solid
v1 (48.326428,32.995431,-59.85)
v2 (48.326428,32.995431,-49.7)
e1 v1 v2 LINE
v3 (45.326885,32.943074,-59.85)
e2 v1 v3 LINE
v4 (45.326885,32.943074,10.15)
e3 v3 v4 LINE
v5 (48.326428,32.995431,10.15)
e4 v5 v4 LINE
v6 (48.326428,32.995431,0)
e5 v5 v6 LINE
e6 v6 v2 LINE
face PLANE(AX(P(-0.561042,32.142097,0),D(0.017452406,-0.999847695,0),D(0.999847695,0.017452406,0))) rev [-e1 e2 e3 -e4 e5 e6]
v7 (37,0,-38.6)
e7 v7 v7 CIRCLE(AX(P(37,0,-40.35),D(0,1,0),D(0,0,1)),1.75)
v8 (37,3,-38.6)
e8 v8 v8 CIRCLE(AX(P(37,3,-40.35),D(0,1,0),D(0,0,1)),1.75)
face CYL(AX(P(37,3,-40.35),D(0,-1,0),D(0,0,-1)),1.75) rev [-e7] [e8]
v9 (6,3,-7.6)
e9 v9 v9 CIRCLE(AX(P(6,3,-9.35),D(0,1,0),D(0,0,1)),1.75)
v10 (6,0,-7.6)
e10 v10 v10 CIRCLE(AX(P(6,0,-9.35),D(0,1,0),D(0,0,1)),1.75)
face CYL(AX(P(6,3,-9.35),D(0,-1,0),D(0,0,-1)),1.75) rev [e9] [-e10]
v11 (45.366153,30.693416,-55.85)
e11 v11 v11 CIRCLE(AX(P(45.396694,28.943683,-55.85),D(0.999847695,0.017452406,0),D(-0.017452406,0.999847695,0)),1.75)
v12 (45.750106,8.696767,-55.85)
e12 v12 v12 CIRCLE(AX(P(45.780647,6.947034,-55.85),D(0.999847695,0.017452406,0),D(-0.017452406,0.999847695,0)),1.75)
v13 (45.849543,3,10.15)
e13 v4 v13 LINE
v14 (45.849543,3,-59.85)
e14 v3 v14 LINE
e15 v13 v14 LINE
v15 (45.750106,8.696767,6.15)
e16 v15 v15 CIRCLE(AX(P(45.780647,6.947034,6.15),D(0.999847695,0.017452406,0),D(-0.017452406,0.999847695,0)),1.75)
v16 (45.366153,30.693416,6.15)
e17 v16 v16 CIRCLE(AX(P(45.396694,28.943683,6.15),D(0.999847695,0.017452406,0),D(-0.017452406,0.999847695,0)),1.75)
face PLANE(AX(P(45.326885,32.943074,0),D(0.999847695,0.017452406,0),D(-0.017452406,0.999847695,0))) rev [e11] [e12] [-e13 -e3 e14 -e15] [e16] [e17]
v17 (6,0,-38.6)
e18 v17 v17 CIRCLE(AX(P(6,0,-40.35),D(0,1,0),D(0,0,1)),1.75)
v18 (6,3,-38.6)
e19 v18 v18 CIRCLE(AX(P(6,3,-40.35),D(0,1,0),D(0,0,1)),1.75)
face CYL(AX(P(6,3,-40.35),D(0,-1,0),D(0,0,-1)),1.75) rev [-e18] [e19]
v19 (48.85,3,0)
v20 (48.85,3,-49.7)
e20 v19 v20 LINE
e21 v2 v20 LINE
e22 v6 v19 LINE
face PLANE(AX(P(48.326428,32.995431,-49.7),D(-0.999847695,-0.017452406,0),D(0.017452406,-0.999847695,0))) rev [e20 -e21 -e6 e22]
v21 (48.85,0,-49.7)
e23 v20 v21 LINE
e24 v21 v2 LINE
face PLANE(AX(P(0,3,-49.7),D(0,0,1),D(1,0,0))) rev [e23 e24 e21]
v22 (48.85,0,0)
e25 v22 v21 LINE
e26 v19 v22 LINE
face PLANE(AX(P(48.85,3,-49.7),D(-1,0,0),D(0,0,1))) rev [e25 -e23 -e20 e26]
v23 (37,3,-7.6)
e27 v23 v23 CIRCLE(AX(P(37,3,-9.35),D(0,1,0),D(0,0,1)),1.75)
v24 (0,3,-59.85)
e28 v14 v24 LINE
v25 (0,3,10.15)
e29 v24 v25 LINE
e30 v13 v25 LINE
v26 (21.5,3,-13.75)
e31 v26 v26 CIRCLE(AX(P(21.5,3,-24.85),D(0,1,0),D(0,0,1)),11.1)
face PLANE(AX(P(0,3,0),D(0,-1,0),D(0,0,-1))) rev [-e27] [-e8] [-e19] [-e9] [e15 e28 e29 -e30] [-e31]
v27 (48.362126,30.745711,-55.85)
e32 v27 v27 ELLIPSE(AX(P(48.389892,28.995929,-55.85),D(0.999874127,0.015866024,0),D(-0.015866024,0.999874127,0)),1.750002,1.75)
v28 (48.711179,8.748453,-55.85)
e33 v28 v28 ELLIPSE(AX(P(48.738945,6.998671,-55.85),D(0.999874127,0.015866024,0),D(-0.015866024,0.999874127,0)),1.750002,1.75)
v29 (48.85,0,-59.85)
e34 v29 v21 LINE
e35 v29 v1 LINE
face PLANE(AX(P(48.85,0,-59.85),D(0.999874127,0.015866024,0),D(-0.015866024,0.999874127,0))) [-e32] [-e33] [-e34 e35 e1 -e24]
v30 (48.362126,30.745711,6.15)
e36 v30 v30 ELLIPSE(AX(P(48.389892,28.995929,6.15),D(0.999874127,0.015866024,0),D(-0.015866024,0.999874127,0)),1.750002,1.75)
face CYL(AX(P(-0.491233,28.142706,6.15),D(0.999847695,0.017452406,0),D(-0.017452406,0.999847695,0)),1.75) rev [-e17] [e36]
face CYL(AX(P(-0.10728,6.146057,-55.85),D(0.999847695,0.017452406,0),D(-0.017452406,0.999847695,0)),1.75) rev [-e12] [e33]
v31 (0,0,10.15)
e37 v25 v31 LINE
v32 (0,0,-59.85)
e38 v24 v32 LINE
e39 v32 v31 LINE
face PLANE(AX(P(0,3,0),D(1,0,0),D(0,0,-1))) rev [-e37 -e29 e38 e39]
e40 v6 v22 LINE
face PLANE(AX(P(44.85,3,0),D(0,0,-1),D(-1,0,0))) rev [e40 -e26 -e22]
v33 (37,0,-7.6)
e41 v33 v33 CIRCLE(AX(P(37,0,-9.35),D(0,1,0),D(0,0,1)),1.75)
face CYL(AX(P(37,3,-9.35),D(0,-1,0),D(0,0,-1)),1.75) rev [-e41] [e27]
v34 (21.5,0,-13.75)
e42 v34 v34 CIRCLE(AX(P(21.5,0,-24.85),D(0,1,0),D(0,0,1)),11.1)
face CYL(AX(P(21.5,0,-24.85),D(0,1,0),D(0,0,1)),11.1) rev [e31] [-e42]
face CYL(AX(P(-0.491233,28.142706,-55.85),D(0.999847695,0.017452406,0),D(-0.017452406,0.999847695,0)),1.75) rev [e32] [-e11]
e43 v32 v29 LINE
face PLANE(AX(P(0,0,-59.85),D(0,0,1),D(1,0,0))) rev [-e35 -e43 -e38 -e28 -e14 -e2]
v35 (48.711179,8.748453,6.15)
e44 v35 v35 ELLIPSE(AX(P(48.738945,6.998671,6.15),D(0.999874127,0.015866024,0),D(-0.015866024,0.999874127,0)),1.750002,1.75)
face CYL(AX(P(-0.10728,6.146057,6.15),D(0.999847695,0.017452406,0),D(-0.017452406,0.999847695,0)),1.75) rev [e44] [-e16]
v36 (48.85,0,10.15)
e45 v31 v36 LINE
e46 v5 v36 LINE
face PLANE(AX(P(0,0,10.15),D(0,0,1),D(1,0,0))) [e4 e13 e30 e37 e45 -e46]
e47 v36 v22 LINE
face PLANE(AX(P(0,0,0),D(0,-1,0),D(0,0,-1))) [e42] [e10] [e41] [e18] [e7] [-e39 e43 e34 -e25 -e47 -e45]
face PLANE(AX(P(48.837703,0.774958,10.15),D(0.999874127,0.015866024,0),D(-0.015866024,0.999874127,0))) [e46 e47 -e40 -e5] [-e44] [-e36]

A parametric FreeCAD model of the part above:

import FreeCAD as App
import Part
import Sketcher
Q = App.Units.Quantity

doc = App.newDocument("Part")
body = doc.addObject("PartDesign::Body", "Body")

sketch1 = body.newObject("Sketcher::SketchObject", "Sketch")
sketch1.AttachmentSupport = (doc.getObject("XZ_Plane"), [""])
sketch1.MapMode = "FlatFace"
sketch1.addGeometry(Part.LineSegment(App.Vector(0, -49.7, 0), App.Vector(0, 0, 0)), False)
sketch1.addGeometry(Part.LineSegment(App.Vector(0, 0, 0), App.Vector(48.9, 0, 0)), False)
sketch1.addGeometry(Part.LineSegment(App.Vector(48.9, 0, 0), App.Vector(48.9, -49.7, 0)), False)
sketch1.addGeometry(Part.LineSegment(App.Vector(48.9, -49.7, 0), App.Vector(0, -49.7, 0)), False)
sketch1.addGeometry(Part.Circle(App.Vector(37, -9.3, 0), App.Vector(0, 0, 1), 1.8), False)
sketch1.addGeometry(Part.Circle(App.Vector(6, -9.3, 0), App.Vector(0, 0, 1), 1.8), False)
sketch1.addGeometry(Part.Circle(App.Vector(37, -40.4, 0), App.Vector(0, 0, 1), 1.8), False)
sketch1.addGeometry(Part.Circle(App.Vector(6, -40.4, 0), App.Vector(0, 0, 1), 1.8), False)
sketch1.addConstraint(Sketcher.Constraint("Coincident", 0, 2, 1, 1))
sketch1.addConstraint(Sketcher.Constraint("Coincident", 1, 2, 2, 1))
sketch1.addConstraint(Sketcher.Constraint("Coincident", 2, 2, 3, 1))
sketch1.addConstraint(Sketcher.Constraint("Coincident", 3, 2, 0, 1))
sketch1.addConstraint(Sketcher.Constraint("Vertical", 0))
sketch1.addConstraint(Sketcher.Constraint("Horizontal", 1))
sketch1.addConstraint(Sketcher.Constraint("Vertical", 2))
sketch1.addConstraint(Sketcher.Constraint("Horizontal", 3))
sketch1.addConstraint(Sketcher.Constraint("Coincident", 0, 2, -1, 1))
sketch1.addConstraint(Sketcher.Constraint("Equal", 4, 5))
sketch1.addConstraint(Sketcher.Constraint("Equal", 5, 6))
sketch1.addConstraint(Sketcher.Constraint("Equal", 6, 7))
sketch1.addConstraint(Sketcher.Constraint("Horizontal", 4, 3, 5, 3))
sketch1.addConstraint(Sketcher.Constraint("Horizontal", 6, 3, 7, 3))
sketch1.addConstraint(Sketcher.Constraint("Vertical", 4, 3, 6, 3))
sketch1.addConstraint(Sketcher.Constraint("Vertical", 5, 3, 7, 3))
sketch1.addConstraint(Sketcher.Constraint("Diameter", 4, 3.5))
sketch1.addConstraint(Sketcher.Constraint("DistanceY", 0, 1, 0, 2, 49.7))
sketch1.addConstraint(Sketcher.Constraint("DistanceX", -1, 1, 4, 3, 37.0))
sketch1.addConstraint(Sketcher.Constraint("DistanceX", -1, 1, 5, 3, 6.0))
sketch1.addConstraint(Sketcher.Constraint("DistanceY", 6, 3, 4, 3, 31.0))
sketch1.addConstraint(Sketcher.Constraint("DistanceX", 1, 1, 1, 2, 48.85))
sketch1.addConstraint(Sketcher.Constraint("DistanceY", 4, 3, -1, 1, 9.35))
pad1 = body.newObject("PartDesign::Pad", "Pad")
pad1.Profile = sketch1
pad1.Length = 3
pad1.Reversed = True

sketch2 = body.newObject("Sketcher::SketchObject", "Sketch001")
sketch2.AttachmentSupport = (doc.getObject("XY_Plane"), [""])
sketch2.MapMode = "FlatFace"
sketch2.addGeometry(Part.LineSegment(App.Vector(45.85, 2.95, 0), App.Vector(48.85, 3, 0)), False)
sketch2.addGeometry(Part.LineSegment(App.Vector(48.85, 3, 0), App.Vector(49.11, 3.1, 0)), False)
sketch2.addGeometry(Part.LineSegment(App.Vector(49.11, 3.1, 0), App.Vector(48.71, 4.25, 0)), False)
sketch2.addGeometry(Part.LineSegment(App.Vector(48.71, 4.25, 0), App.Vector(45.82, 4.43, 0)), False)
sketch2.addGeometry(Part.LineSegment(App.Vector(45.82, 4.43, 0), App.Vector(45.85, 2.95, 0)), False)
sketch2.addConstraint(Sketcher.Constraint("Coincident", 0, 2, 1, 1))
sketch2.addConstraint(Sketcher.Constraint("Coincident", 1, 2, 2, 1))
sketch2.addConstraint(Sketcher.Constraint("Coincident", 2, 2, 3, 1))
sketch2.addConstraint(Sketcher.Constraint("Coincident", 3, 2, 4, 1))
sketch2.addConstraint(Sketcher.Constraint("Coincident", 4, 2, 0, 1))
sketch2.addConstraint(Sketcher.Constraint("Perpendicular", 0, 4))
sketch2.addConstraint(Sketcher.Constraint("Angle", 0, Q("1 deg")))
sketch2.addConstraint(Sketcher.Constraint("Distance", 0, 3.0))
sketch2.addConstraint(Sketcher.Constraint("DistanceY", -1, 1, 0, 2, 3.0))
sketch2.addConstraint(Sketcher.Constraint("DistanceX", -1, 1, 0, 2, 48.85))
sketch2.addConstraint(Sketcher.Constraint("Distance", 1, 0.28122))
sketch2.addConstraint(Sketcher.Constraint("Distance", 3, 2.892811))
sketch2.addConstraint(Sketcher.Constraint("Distance", 4, 1.481271))
sketch2.addConstraint(Sketcher.Constraint("DistanceY", -1, 1, 1, 2, 3.101191))
sketch2.addConstraint(Sketcher.Constraint("DistanceX", -1, 1, 2, 2, 48.712091))
pocket1 = body.newObject("PartDesign::Pocket", "Pocket")
pocket1.Profile = sketch2
pocket1.Type = "ThroughAll"

sketch3 = body.newObject("Sketcher::SketchObject", "Sketch002")
sketch3.Placement = App.Placement(App.Vector(-0.03747, 2.146666, 0), App.Rotation(App.Vector(0.999847695, 0.017452406, 0), App.Vector(0, 0, -1), App.Vector(-0.017452406, 0.999847695, 0), "ZXY"))
sketch3.addGeometry(Part.LineSegment(App.Vector(45.9, 49.7, 0), App.Vector(45.9, 0, 0)), False)
sketch3.addGeometry(Part.LineSegment(App.Vector(45.9, 0, 0), App.Vector(48.9, 0, 0)), False)
sketch3.addGeometry(Part.LineSegment(App.Vector(48.9, 0, 0), App.Vector(48.9, 49.7, 0)), False)
sketch3.addGeometry(Part.LineSegment(App.Vector(48.9, 49.7, 0), App.Vector(45.9, 49.7, 0)), False)
sketch3.addConstraint(Sketcher.Constraint("Coincident", 0, 2, 1, 1))
sketch3.addConstraint(Sketcher.Constraint("Coincident", 1, 2, 2, 1))
sketch3.addConstraint(Sketcher.Constraint("Coincident", 2, 2, 3, 1))
sketch3.addConstraint(Sketcher.Constraint("Coincident", 3, 2, 0, 1))
sketch3.addConstraint(Sketcher.Constraint("Vertical", 0))
sketch3.addConstraint(Sketcher.Constraint("Horizontal", 1))
sketch3.addConstraint(Sketcher.Constraint("Vertical", 2))
sketch3.addConstraint(Sketcher.Constraint("Horizontal", 3))
sketch3.addConstraint(Sketcher.Constraint("PointOnObject", 0, 2, -1))
sketch3.addConstraint(Sketcher.Constraint("DistanceX", 1, 1, 1, 2, 3.0))
sketch3.addConstraint(Sketcher.Constraint("DistanceY", 0, 2, 0, 1, 49.7))
sketch3.addConstraint(Sketcher.Constraint("DistanceX", -1, 1, 0, 2, 45.894917))
pad2 = body.newObject("PartDesign::Pad", "Pad001")
pad2.Profile = sketch3
pad2.Length = 30

sketch4 = body.newObject("Sketcher::SketchObject", "Sketch003")
sketch4.AttachmentSupport = (doc.getObject("XY_Plane"), [""])
sketch4.MapMode = "FlatFace"
sketch4.addGeometry(Part.LineSegment(App.Vector(48.9, 0, 0), App.Vector(48.3, 33, 0)), False)
sketch4.addGeometry(Part.LineSegment(App.Vector(48.3, 33, 0), App.Vector(45.3, 32.9, 0)), False)
sketch4.addGeometry(Part.LineSegment(App.Vector(45.3, 32.9, 0), App.Vector(45.8, 3, 0)), False)
sketch4.addGeometry(Part.LineSegment(App.Vector(45.8, 3, 0), App.Vector(0, 3, 0)), False)
sketch4.addGeometry(Part.LineSegment(App.Vector(0, 3, 0), App.Vector(0, 0, 0)), False)
sketch4.addGeometry(Part.LineSegment(App.Vector(0, 0, 0), App.Vector(48.9, 0, 0)), False)
sketch4.addConstraint(Sketcher.Constraint("Coincident", 0, 2, 1, 1))
sketch4.addConstraint(Sketcher.Constraint("Coincident", 1, 2, 2, 1))
sketch4.addConstraint(Sketcher.Constraint("Coincident", 2, 2, 3, 1))
sketch4.addConstraint(Sketcher.Constraint("Coincident", 3, 2, 4, 1))
sketch4.addConstraint(Sketcher.Constraint("Coincident", 4, 2, 5, 1))
sketch4.addConstraint(Sketcher.Constraint("Coincident", 5, 2, 0, 1))
sketch4.addConstraint(Sketcher.Constraint("Horizontal", 3))
sketch4.addConstraint(Sketcher.Constraint("Vertical", 4))
sketch4.addConstraint(Sketcher.Constraint("Horizontal", 5))
sketch4.addConstraint(Sketcher.Constraint("Coincident", 4, 2, -1, 1))
sketch4.addConstraint(Sketcher.Constraint("Perpendicular", 1, 2))
sketch4.addConstraint(Sketcher.Constraint("DistanceY", 4, 2, 4, 1, 3.0))
sketch4.addConstraint(Sketcher.Constraint("Angle", 1, Q("-179 deg")))
sketch4.addConstraint(Sketcher.Constraint("Distance", 1, 3.0))
sketch4.addConstraint(Sketcher.Constraint("DistanceX", 5, 1, 5, 2, 48.85))
sketch4.addConstraint(Sketcher.Constraint("DistanceX", 3, 2, 3, 1, 45.849543))
sketch4.addConstraint(Sketcher.Constraint("DistanceY", -1, 1, 0, 2, 32.995431))
pad3 = body.newObject("PartDesign::Pad", "Pad002")
pad3.Profile = sketch4
pad3.Length = 10.15

sketch5 = body.newObject("Sketcher::SketchObject", "Sketch004")
sketch5.AttachmentSupport = (doc.getObject("XY_Plane"), [""])
sketch5.MapMode = "FlatFace"
sketch5.AttachmentOffset = App.Placement(App.Vector(0, 0, -49.7), App.Rotation())
sketch5.addGeometry(Part.LineSegment(App.Vector(48.9, 0, 0), App.Vector(0, 0, 0)), False)
sketch5.addGeometry(Part.LineSegment(App.Vector(0, 0, 0), App.Vector(0, 3, 0)), False)
sketch5.addGeometry(Part.LineSegment(App.Vector(0, 3, 0), App.Vector(45.8, 3, 0)), False)
sketch5.addGeometry(Part.LineSegment(App.Vector(45.8, 3, 0), App.Vector(45.3, 32.9, 0)), False)
sketch5.addGeometry(Part.LineSegment(App.Vector(45.3, 32.9, 0), App.Vector(48.3, 33, 0)), False)
sketch5.addGeometry(Part.LineSegment(App.Vector(48.3, 33, 0), App.Vector(48.9, 0, 0)), False)
sketch5.addConstraint(Sketcher.Constraint("Coincident", 0, 2, 1, 1))
sketch5.addConstraint(Sketcher.Constraint("Coincident", 1, 2, 2, 1))
sketch5.addConstraint(Sketcher.Constraint("Coincident", 2, 2, 3, 1))
sketch5.addConstraint(Sketcher.Constraint("Coincident", 3, 2, 4, 1))
sketch5.addConstraint(Sketcher.Constraint("Coincident", 4, 2, 5, 1))
sketch5.addConstraint(Sketcher.Constraint("Coincident", 5, 2, 0, 1))
sketch5.addConstraint(Sketcher.Constraint("Horizontal", 0))
sketch5.addConstraint(Sketcher.Constraint("Vertical", 1))
sketch5.addConstraint(Sketcher.Constraint("Horizontal", 2))
sketch5.addConstraint(Sketcher.Constraint("Coincident", 0, 2, -1, 1))
sketch5.addConstraint(Sketcher.Constraint("Perpendicular", 3, 4))
sketch5.addConstraint(Sketcher.Constraint("DistanceY", 1, 1, 1, 2, 3.0))
sketch5.addConstraint(Sketcher.Constraint("Angle", 3, Q("91 deg")))
sketch5.addConstraint(Sketcher.Constraint("Distance", 4, 3.0))
sketch5.addConstraint(Sketcher.Constraint("DistanceX", 0, 2, 0, 1, 48.85))
sketch5.addConstraint(Sketcher.Constraint("DistanceX", 2, 1, 2, 2, 45.849543))
sketch5.addConstraint(Sketcher.Constraint("DistanceY", -1, 1, 4, 2, 32.995431))
pad4 = body.newObject("PartDesign::Pad", "Pad003")
pad4.Profile = sketch5
pad4.Length = 10.15
pad4.Reversed = True

sketch6 = body.newObject("Sketcher::SketchObject", "Sketch005")
sketch6.Placement = App.Placement(App.Vector(48.88747, 0.853334, 0), App.Rotation(App.Vector(0, 0, -1), App.Vector(-0.017452406, 0.999847695, 0), App.Vector(0.999847695, 0.017452406, 0), "ZXY"))
sketch6.addGeometry(Part.Circle(App.Vector(-6.2, 28.1, 0), App.Vector(0, 0, 1), 1.8), False)
sketch6.addGeometry(Part.Circle(App.Vector(-6.2, 6.1, 0), App.Vector(0, 0, 1), 1.8), False)
sketch6.addGeometry(Part.Circle(App.Vector(55.9, 28.1, 0), App.Vector(0, 0, 1), 1.8), False)
sketch6.addGeometry(Part.Circle(App.Vector(55.9, 6.1, 0), App.Vector(0, 0, 1), 1.8), False)
sketch6.addConstraint(Sketcher.Constraint("Equal", 0, 1))
sketch6.addConstraint(Sketcher.Constraint("Equal", 1, 2))
sketch6.addConstraint(Sketcher.Constraint("Equal", 2, 3))
sketch6.addConstraint(Sketcher.Constraint("Horizontal", 0, 3, 2, 3))
sketch6.addConstraint(Sketcher.Constraint("Horizontal", 1, 3, 3, 3))
sketch6.addConstraint(Sketcher.Constraint("Vertical", 0, 3, 1, 3))
sketch6.addConstraint(Sketcher.Constraint("Vertical", 2, 3, 3, 3))
sketch6.addConstraint(Sketcher.Constraint("Diameter", 0, 3.5))
sketch6.addConstraint(Sketcher.Constraint("DistanceY", 1, 3, 0, 3, 22.0))
sketch6.addConstraint(Sketcher.Constraint("DistanceX", 0, 3, 2, 3, 62.0))
sketch6.addConstraint(Sketcher.Constraint("DistanceX", 0, 3, -1, 1, 6.15))
sketch6.addConstraint(Sketcher.Constraint("DistanceY", -1, 1, 0, 3, 28.146993))
pocket2 = body.newObject("PartDesign::Pocket", "Pocket001")
pocket2.Profile = sketch6
pocket2.Type = "ThroughAll"

sketch7 = body.newObject("Sketcher::SketchObject", "Sketch006")
sketch7.AttachmentSupport = (doc.getObject("XZ_Plane"), [""])
sketch7.MapMode = "FlatFace"
sketch7.AttachmentOffset = App.Placement(App.Vector(0, 0, -3), App.Rotation())
sketch7.addGeometry(Part.Circle(App.Vector(22, -25, 0), App.Vector(0, 0, 1), 11), False)
sketch7.addConstraint(Sketcher.Constraint("Diameter", 0, 22.2))
sketch7.addConstraint(Sketcher.Constraint("DistanceX", -1, 1, 0, 3, 21.5))
sketch7.addConstraint(Sketcher.Constraint("DistanceY", 0, 3, -1, 1, 24.85))
pocket3 = body.newObject("PartDesign::Pocket", "Pocket002")
pocket3.Profile = sketch7
pocket3.Type = "ThroughAll"
pocket3.Reversed = True

doc.recompute()
